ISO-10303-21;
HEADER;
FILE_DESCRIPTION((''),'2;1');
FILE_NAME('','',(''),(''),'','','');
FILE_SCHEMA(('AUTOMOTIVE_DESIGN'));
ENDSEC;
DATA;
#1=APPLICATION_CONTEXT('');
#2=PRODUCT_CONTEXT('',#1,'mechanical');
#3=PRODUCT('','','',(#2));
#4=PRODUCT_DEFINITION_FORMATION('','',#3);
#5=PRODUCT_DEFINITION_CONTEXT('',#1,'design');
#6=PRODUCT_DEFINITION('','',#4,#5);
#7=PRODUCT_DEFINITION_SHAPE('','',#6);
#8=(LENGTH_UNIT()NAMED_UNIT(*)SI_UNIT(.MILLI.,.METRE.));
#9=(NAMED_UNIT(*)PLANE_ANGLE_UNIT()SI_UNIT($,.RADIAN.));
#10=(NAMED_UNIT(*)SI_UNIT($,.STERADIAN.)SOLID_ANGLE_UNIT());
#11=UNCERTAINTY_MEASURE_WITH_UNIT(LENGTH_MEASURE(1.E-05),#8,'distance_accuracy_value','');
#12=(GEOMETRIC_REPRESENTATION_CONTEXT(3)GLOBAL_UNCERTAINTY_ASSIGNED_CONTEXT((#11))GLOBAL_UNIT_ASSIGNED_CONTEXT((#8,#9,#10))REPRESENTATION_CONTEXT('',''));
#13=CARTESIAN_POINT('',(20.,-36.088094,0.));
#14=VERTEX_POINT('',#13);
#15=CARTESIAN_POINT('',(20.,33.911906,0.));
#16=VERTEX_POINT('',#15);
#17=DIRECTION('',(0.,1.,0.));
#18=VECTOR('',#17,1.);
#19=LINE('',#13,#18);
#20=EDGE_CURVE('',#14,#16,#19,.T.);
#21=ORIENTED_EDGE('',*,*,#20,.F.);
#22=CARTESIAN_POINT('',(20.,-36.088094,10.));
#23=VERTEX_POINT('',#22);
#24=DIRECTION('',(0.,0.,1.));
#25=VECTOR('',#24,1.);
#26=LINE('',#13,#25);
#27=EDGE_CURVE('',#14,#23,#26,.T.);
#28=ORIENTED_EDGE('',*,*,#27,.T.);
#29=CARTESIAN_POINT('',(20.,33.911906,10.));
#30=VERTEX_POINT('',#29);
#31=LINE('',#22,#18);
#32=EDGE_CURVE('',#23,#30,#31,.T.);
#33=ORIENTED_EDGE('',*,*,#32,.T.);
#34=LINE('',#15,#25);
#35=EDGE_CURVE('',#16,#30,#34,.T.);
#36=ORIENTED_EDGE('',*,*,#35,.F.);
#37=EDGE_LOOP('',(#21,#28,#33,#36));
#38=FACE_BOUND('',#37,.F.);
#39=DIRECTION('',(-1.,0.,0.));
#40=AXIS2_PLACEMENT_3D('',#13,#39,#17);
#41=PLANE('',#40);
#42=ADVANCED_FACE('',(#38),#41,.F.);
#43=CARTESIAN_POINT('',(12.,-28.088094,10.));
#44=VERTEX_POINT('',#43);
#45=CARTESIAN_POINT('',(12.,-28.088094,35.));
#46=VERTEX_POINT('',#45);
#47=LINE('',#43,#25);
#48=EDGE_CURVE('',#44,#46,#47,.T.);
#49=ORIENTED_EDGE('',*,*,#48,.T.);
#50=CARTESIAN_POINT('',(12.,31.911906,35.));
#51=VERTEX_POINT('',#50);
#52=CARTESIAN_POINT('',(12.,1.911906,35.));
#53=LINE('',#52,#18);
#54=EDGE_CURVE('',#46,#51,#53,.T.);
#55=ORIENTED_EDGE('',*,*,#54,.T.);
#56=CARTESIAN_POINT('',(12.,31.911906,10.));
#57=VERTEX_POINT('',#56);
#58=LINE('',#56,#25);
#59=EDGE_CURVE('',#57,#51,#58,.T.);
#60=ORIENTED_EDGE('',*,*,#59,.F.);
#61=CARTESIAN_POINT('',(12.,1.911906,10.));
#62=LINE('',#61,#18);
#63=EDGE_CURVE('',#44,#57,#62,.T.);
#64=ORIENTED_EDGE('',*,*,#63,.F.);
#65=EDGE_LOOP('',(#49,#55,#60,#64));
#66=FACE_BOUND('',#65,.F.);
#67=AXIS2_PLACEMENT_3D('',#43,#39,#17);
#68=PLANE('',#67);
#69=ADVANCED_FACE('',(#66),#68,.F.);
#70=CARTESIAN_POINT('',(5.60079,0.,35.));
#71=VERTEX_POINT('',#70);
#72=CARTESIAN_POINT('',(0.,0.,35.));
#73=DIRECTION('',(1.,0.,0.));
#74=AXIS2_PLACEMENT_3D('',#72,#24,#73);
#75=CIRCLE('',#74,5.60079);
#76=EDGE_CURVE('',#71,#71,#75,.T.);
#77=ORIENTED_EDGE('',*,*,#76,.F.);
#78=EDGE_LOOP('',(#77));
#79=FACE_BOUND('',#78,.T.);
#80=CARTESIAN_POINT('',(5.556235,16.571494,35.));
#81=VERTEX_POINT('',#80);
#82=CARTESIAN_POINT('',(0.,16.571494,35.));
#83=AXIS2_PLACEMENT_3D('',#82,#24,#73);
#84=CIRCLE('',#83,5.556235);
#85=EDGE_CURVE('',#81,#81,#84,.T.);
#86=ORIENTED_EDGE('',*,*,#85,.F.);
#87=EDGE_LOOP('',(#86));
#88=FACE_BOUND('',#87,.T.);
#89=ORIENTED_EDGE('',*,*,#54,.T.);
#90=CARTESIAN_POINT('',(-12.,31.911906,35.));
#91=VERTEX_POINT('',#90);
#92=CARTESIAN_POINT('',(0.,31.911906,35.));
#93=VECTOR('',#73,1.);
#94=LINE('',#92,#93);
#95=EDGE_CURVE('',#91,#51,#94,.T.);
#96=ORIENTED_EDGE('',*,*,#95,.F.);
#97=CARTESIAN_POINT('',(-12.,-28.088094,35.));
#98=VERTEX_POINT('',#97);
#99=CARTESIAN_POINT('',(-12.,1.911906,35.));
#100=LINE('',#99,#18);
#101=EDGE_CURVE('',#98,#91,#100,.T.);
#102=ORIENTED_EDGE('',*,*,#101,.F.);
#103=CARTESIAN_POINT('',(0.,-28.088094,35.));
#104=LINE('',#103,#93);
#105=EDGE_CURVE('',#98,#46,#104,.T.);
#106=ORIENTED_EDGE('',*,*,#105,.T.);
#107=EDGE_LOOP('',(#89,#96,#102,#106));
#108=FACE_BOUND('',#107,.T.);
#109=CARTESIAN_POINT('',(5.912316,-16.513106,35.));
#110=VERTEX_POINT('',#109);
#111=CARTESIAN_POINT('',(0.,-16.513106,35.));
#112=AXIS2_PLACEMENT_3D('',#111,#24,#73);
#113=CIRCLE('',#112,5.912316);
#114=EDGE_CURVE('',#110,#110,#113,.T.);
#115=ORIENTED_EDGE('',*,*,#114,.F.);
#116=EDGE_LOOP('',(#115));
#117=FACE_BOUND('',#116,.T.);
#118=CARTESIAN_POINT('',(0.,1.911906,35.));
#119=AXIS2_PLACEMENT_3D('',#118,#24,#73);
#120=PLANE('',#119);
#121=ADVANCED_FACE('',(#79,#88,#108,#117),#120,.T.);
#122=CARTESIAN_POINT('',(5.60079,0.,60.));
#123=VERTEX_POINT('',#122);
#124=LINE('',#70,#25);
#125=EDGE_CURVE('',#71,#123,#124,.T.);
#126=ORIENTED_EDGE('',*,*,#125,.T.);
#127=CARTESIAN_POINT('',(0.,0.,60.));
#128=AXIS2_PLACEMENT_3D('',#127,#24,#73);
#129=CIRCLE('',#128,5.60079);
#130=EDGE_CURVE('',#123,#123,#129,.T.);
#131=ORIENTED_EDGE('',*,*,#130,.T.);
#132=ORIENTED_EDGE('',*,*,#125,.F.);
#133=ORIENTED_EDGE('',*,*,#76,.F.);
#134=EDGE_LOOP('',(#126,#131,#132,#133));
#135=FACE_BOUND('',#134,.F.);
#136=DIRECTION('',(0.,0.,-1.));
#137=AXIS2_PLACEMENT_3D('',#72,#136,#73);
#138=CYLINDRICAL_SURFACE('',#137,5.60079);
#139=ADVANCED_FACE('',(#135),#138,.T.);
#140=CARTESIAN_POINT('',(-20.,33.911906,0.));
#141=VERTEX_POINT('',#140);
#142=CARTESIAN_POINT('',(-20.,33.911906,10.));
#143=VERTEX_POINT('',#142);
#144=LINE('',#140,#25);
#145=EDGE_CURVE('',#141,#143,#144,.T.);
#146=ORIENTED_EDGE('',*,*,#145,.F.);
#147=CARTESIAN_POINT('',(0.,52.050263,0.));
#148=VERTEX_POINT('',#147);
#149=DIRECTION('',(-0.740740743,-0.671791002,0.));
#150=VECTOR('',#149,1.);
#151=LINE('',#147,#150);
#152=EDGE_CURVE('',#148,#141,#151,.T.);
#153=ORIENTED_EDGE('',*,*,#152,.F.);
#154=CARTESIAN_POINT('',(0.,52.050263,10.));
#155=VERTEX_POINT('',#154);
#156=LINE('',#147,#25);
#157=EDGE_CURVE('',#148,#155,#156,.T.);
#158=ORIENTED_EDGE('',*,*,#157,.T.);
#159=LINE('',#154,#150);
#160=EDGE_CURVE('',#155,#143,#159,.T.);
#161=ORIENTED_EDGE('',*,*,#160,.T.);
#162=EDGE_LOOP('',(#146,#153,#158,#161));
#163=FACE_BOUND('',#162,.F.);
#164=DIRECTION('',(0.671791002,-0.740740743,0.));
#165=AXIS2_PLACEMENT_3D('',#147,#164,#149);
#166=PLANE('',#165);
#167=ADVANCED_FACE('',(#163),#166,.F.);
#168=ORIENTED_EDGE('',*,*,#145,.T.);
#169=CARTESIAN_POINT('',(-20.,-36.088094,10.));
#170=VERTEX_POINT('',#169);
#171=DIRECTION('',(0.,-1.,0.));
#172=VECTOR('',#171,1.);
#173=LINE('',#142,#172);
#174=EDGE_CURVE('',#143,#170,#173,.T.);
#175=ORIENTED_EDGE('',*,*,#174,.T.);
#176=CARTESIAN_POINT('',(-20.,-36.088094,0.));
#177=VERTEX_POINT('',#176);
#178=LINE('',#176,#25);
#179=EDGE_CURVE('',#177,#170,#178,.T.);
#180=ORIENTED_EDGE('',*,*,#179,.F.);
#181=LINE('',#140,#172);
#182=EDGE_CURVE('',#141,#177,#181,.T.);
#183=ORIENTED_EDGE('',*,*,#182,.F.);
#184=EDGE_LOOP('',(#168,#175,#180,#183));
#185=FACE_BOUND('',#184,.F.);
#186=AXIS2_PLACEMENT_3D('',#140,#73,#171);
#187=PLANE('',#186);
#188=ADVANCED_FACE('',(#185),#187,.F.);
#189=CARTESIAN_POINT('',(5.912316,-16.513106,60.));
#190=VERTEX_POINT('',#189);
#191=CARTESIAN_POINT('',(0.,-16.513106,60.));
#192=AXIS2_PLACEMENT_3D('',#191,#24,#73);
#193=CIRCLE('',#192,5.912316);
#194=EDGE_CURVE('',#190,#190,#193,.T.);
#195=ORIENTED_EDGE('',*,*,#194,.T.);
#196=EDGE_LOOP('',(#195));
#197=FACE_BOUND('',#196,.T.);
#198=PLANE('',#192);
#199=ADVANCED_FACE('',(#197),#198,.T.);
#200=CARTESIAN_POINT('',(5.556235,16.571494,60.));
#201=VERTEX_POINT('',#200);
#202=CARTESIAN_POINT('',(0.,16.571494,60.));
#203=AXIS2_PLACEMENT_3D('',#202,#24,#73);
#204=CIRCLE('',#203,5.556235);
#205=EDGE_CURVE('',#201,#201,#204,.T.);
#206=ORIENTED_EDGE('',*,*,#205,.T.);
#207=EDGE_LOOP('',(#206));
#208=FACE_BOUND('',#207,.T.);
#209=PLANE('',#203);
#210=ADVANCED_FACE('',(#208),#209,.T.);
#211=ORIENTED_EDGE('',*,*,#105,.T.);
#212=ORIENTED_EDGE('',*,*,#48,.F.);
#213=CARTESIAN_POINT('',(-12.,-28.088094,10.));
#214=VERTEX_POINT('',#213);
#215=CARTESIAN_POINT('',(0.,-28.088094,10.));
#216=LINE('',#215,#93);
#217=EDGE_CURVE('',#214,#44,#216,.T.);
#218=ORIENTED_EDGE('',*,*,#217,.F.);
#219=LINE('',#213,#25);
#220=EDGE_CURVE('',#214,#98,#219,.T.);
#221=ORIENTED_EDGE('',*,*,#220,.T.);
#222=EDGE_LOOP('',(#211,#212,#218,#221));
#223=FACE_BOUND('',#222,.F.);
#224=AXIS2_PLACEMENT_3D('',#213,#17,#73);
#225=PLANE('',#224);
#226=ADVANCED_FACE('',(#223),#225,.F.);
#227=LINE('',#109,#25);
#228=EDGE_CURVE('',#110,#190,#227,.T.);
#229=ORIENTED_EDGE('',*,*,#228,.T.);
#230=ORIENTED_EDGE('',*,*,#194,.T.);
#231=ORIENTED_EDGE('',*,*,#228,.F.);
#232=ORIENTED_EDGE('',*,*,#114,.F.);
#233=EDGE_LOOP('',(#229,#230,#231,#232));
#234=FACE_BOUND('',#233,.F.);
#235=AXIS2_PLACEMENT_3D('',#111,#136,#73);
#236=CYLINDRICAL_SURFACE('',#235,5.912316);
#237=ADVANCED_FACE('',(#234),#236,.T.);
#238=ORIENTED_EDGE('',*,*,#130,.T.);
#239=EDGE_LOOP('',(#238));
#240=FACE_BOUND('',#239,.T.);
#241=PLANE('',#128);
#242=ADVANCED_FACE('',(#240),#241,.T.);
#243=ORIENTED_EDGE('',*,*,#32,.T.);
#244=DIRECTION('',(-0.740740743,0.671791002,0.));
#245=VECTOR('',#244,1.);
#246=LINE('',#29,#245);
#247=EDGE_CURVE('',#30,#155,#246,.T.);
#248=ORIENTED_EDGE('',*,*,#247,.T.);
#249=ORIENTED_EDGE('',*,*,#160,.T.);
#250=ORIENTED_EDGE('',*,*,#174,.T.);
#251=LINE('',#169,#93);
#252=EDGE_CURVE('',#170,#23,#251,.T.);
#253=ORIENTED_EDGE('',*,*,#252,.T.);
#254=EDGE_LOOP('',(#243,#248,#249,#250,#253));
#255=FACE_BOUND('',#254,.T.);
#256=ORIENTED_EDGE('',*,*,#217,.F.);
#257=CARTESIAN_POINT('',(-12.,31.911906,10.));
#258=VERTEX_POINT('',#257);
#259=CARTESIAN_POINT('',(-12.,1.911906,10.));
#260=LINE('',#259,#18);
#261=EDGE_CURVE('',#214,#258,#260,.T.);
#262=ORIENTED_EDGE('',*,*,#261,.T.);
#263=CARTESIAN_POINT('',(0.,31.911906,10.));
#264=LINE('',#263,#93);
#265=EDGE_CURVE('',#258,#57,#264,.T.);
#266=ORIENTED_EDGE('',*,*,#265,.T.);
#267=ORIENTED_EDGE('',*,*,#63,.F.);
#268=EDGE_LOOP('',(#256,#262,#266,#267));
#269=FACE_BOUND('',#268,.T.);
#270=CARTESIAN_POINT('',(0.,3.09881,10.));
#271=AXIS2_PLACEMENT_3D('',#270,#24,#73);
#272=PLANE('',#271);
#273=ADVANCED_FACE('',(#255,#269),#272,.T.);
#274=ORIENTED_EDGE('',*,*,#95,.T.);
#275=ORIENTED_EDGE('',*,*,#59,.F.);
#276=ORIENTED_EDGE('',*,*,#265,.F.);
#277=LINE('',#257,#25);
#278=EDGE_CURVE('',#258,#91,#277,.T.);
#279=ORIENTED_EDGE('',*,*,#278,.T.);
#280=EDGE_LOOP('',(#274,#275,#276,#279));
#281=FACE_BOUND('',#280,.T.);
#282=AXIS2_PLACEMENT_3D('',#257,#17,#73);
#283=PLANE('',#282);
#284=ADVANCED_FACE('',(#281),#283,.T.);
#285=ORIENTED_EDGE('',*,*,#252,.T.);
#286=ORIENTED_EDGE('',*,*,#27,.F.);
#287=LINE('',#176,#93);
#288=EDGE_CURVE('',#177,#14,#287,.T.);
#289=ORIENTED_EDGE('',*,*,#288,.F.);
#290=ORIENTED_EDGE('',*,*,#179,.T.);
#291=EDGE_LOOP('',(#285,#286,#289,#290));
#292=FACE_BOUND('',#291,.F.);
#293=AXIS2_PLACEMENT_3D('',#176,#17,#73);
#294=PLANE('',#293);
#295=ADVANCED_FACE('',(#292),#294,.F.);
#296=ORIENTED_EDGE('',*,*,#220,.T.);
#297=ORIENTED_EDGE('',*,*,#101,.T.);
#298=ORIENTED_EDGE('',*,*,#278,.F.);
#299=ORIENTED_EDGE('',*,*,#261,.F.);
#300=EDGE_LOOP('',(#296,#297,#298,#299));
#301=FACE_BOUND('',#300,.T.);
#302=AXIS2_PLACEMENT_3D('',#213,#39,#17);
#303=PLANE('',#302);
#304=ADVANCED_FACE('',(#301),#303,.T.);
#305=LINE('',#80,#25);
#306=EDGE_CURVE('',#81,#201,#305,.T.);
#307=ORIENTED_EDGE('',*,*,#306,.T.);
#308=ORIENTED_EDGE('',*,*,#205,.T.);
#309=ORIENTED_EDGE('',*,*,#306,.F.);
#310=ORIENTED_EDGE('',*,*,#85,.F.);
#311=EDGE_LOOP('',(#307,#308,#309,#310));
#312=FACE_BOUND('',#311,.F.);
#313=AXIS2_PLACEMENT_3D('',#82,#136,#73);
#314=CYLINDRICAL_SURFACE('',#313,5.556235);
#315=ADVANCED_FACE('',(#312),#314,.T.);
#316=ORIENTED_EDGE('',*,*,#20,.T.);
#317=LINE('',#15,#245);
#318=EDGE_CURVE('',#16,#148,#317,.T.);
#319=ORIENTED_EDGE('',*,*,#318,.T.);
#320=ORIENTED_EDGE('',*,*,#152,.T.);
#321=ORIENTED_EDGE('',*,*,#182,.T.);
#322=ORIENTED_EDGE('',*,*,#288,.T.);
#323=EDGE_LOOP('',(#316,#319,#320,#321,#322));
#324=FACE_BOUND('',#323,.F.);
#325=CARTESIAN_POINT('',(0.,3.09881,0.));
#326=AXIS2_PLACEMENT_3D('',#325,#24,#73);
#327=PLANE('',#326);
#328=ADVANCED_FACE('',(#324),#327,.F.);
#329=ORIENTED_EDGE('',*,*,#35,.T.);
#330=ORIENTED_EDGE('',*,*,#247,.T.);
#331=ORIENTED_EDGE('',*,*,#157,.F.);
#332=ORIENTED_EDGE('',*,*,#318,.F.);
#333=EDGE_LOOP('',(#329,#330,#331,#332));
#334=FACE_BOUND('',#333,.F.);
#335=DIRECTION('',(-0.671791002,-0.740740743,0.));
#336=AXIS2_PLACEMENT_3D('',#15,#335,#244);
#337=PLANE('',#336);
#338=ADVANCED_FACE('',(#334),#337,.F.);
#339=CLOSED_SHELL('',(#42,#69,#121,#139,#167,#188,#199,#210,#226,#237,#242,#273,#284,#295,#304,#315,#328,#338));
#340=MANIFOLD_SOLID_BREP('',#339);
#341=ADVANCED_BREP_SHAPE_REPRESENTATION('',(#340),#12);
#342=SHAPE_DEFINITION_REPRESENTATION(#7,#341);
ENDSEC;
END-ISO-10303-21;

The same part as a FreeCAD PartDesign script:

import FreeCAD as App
import Part
import Sketcher

doc = App.newDocument("Part")
body = doc.addObject("PartDesign::Body", "Body")

sketch1 = doc.addObject("Sketcher::SketchObject", "Sketch")
body.addObject(sketch1)
sketch1.AttachmentSupport = (doc.XY_Plane, [""])
sketch1.MapMode = "FlatFace"
sketch1.addGeometry(Part.LineSegment(App.Vector(0, 52, 0), App.Vector(-20, 34, 0)), False)
sketch1.addGeometry(Part.LineSegment(App.Vector(-20, 34, 0), App.Vector(-20, -36, 0)), False)
sketch1.addGeometry(Part.LineSegment(App.Vector(-20, -36, 0), App.Vector(20, -36, 0)), False)
sketch1.addGeometry(Part.LineSegment(App.Vector(20, -36, 0), App.Vector(20, 34, 0)), False)
sketch1.addGeometry(Part.LineSegment(App.Vector(20, 34, 0), App.Vector(0, 52, 0)), False)
sketch1.addConstraint(Sketcher.Constraint("Coincident", 0, 2, 1, 1))
sketch1.addConstraint(Sketcher.Constraint("Coincident", 1, 2, 2, 1))
sketch1.addConstraint(Sketcher.Constraint("Coincident", 2, 2, 3, 1))
sketch1.addConstraint(Sketcher.Constraint("Coincident", 3, 2, 4, 1))
sketch1.addConstraint(Sketcher.Constraint("Coincident", 4, 2, 0, 1))
sketch1.addConstraint(Sketcher.Constraint("Vertical", 1))
sketch1.addConstraint(Sketcher.Constraint("Horizontal", 2))
sketch1.addConstraint(Sketcher.Constraint("Vertical", 3))
sketch1.addConstraint(Sketcher.Constraint("Symmetric", 0, 2, 3, 2, -2))
sketch1.addConstraint(Sketcher.Constraint("PointOnObject", 4, 2, -2))
sketch1.addConstraint(Sketcher.Constraint("DistanceX", 2, 1, 2, 2, 40.0))
sketch1.addConstraint(Sketcher.Constraint("DistanceY", 1, 2, 1, 1, 70.0))
sketch1.addConstraint(Sketcher.Constraint("Distance", 0, 27.0))
sketch1.addConstraint(Sketcher.Constraint("DistanceY", -1, 1, 0, 2, 33.911906))
pad1 = doc.addObject("PartDesign::Pad", "Pad")
body.addObject(pad1)
pad1.Profile = sketch1
pad1.Length = 10

sketch2 = doc.addObject("Sketcher::SketchObject", "Sketch001")
body.addObject(sketch2)
sketch2.AttachmentSupport = (doc.XY_Plane, [""])
sketch2.MapMode = "FlatFace"
sketch2.AttachmentOffset = App.Placement(App.Vector(0, 0, 10), App.Rotation())
sketch2.addGeometry(Part.LineSegment(App.Vector(-12, 32, 0), App.Vector(-12, -28, 0)), False)
sketch2.addGeometry(Part.LineSegment(App.Vector(-12, -28, 0), App.Vector(12, -28, 0)), False)
sketch2.addGeometry(Part.LineSegment(App.Vector(12, -28, 0), App.Vector(12, 32, 0)), False)
sketch2.addGeometry(Part.LineSegment(App.Vector(12, 32, 0), App.Vector(-12, 32, 0)), False)
sketch2.addConstraint(Sketcher.Constraint("Coincident", 0, 2, 1, 1))
sketch2.addConstraint(Sketcher.Constraint("Coincident", 1, 2, 2, 1))
sketch2.addConstraint(Sketcher.Constraint("Coincident", 2, 2, 3, 1))
sketch2.addConstraint(Sketcher.Constraint("Coincident", 3, 2, 0, 1))
sketch2.addConstraint(Sketcher.Constraint("Vertical", 0))
sketch2.addConstraint(Sketcher.Constraint("Horizontal", 1))
sketch2.addConstraint(Sketcher.Constraint("Vertical", 2))
sketch2.addConstraint(Sketcher.Constraint("Horizontal", 3))
sketch2.addConstraint(Sketcher.Constraint("DistanceX", 1, 1, 1, 2, 24.0))
sketch2.addConstraint(Sketcher.Constraint("DistanceY", 0, 2, 0, 1, 60.0))
sketch2.addConstraint(Sketcher.Constraint("DistanceX", 0, 2, -1, 1, 12.0))
sketch2.addConstraint(Sketcher.Constraint("DistanceY", 0, 2, -1, 1, 28.088094))
pad2 = doc.addObject("PartDesign::Pad", "Pad001")
body.addObject(pad2)
pad2.Profile = sketch2
pad2.Length = 25

sketch3 = doc.addObject("Sketcher::SketchObject", "Sketch002")
body.addObject(sketch3)
sketch3.AttachmentSupport = (doc.XY_Plane, [""])
sketch3.MapMode = "FlatFace"
sketch3.AttachmentOffset = App.Placement(App.Vector(0, 0, 35), App.Rotation())
sketch3.addGeometry(Part.Circle(App.Vector(0, 17, 0), App.Vector(0, 0, 1), 6), False)
sketch3.addGeometry(Part.Circle(App.Vector(0, 0, 0), App.Vector(0, 0, 1), 6), False)
sketch3.addGeometry(Part.Circle(App.Vector(0, -17, 0), App.Vector(0, 0, 1), 6), False)
sketch3.addConstraint(Sketcher.Constraint("Coincident", 1, 3, -1, 1))
sketch3.addConstraint(Sketcher.Constraint("PointOnObject", 0, 3, -2))
sketch3.addConstraint(Sketcher.Constraint("PointOnObject", 2, 3, -2))
sketch3.addConstraint(Sketcher.Constraint("Diameter", 0, 11.11247))
sketch3.addConstraint(Sketcher.Constraint("Diameter", 1, 11.20158))
sketch3.addConstraint(Sketcher.Constraint("Diameter", 2, 11.824632))
sketch3.addConstraint(Sketcher.Constraint("DistanceY", 2, 3, 0, 3, 33.0846))
sketch3.addConstraint(Sketcher.Constraint("DistanceY", -1, 1, 0, 3, 16.571494))
pad3 = doc.addObject("PartDesign::Pad", "Pad002")
body.addObject(pad3)
pad3.Profile = sketch3
pad3.Length = 25

doc.recompute()
